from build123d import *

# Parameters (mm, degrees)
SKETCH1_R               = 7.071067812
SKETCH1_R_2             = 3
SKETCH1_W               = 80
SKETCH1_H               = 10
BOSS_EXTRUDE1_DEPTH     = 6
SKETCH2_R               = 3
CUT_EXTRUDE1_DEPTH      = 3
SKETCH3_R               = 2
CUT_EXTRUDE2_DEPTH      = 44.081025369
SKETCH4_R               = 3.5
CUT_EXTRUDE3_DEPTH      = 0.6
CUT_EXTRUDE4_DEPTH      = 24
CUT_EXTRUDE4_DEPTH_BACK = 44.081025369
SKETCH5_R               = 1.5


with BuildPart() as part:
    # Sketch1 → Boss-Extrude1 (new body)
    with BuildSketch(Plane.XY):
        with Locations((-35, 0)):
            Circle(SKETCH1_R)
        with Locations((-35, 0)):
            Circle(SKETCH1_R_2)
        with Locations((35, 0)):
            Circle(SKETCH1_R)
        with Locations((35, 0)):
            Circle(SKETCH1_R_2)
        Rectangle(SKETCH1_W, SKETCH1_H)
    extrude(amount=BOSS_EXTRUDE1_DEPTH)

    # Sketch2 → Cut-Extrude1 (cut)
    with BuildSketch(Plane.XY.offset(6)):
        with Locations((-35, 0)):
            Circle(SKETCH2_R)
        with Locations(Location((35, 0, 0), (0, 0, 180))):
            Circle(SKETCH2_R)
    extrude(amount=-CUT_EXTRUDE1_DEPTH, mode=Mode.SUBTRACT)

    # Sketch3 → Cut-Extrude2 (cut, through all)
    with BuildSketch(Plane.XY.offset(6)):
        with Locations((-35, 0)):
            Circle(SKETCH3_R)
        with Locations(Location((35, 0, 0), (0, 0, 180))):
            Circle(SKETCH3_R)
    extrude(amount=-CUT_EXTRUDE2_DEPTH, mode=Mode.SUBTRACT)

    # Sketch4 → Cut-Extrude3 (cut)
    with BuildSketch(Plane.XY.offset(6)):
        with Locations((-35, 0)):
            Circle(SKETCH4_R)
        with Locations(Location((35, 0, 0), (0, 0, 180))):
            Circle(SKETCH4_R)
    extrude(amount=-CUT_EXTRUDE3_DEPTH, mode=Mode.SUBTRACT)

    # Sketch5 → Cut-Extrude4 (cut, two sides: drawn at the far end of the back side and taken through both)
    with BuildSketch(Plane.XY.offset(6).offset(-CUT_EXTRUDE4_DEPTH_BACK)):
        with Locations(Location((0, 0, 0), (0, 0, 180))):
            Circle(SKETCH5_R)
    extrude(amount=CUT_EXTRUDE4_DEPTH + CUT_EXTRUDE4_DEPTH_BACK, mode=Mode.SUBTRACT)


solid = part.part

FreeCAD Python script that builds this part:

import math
import FreeCAD as App
import Part
import Sketcher

doc = App.newDocument("Part")
body = doc.addObject("PartDesign::Body", "Body")

# Sketch on XY plane
sketch1 = body.newObject("Sketcher::SketchObject", "Sketch")
sketch1.AttachmentSupport = (doc.getObject("XY_Plane"), [""])
sketch1.MapMode = "FlatFace"
sketch1.addGeometry(Part.LineSegment(App.Vector(-30, -5, 0), App.Vector(30, -5, 0)), False)
sketch1.addGeometry(Part.ArcOfCircle(Part.Circle(App.Vector(35, 0, 0), App.Vector(0, 0, 1), 7.071068), math.radians(-135), math.radians(135)), False)
sketch1.addGeometry(Part.LineSegment(App.Vector(30, 5, 0), App.Vector(-30, 5, 0)), False)
sketch1.addGeometry(Part.ArcOfCircle(Part.Circle(App.Vector(-35, 0, 0), App.Vector(0, 0, 1), 7.071068), math.radians(45), math.radians(315)), False)
sketch1.addConstraint(Sketcher.Constraint("Coincident", 0, 2, 1, 1))
sketch1.addConstraint(Sketcher.Constraint("Coincident", 1, 2, 2, 1))
sketch1.addConstraint(Sketcher.Constraint("Coincident", 2, 2, 3, 1))
sketch1.addConstraint(Sketcher.Constraint("Coincident", 3, 2, 0, 1))
sketch1.addConstraint(Sketcher.Constraint("Horizontal", 0))
sketch1.addConstraint(Sketcher.Constraint("Horizontal", 2))
sketch1.addConstraint(Sketcher.Constraint("Equal", 1, 3))
sketch1.addConstraint(Sketcher.Constraint("Symmetric", 1, 3, 3, 3, -1, 1))
sketch1.addConstraint(Sketcher.Constraint("Symmetric", 0, 2, 1, 2, -1))
sketch1.addConstraint(Sketcher.Constraint("DistanceX", 0, 1, 0, 2, 60.0))
sketch1.addConstraint(Sketcher.Constraint("DistanceX", -1, 1, 1, 3, 35.0))
sketch1.addConstraint(Sketcher.Constraint("DistanceY", 0, 2, -1, 1, 5.0))
pad1 = body.newObject("PartDesign::Pad", "Pad")
pad1.Profile = sketch1
pad1.Length = 6

# Sketch on XY plane
sketch2 = body.newObject("Sketcher::SketchObject", "Sketch001")
sketch2.AttachmentSupport = (doc.getObject("XY_Plane"), [""])
sketch2.MapMode = "FlatFace"
sketch2.AttachmentOffset = App.Placement(App.Vector(0, 0, 6), App.Rotation())
sketch2.addGeometry(Part.Circle(App.Vector(-35, 0, 0), App.Vector(0, 0, 1), 3), False)
sketch2.addGeometry(Part.Circle(App.Vector(35, 0, 0), App.Vector(0, 0, 1), 3), False)
sketch2.addConstraint(Sketcher.Constraint("Equal", 0, 1))
sketch2.addConstraint(Sketcher.Constraint("Symmetric", 0, 3, 1, 3, -1, 1))
sketch2.addConstraint(Sketcher.Constraint("PointOnObject", 0, 3, -1))
sketch2.addConstraint(Sketcher.Constraint("Diameter", 0, 6.0))
sketch2.addConstraint(Sketcher.Constraint("DistanceX", 0, 3, -1, 1, 35.0))
pocket1 = body.newObject("PartDesign::Pocket", "Pocket")
pocket1.Profile = sketch2
pocket1.Length = 3

# Sketch on XY plane
sketch3 = body.newObject("Sketcher::SketchObject", "Sketch002")
sketch3.AttachmentSupport = (doc.getObject("XY_Plane"), [""])
sketch3.MapMode = "FlatFace"
sketch3.AttachmentOffset = App.Placement(App.Vector(0, 0, 6), App.Rotation())
sketch3.addGeometry(Part.Circle(App.Vector(-35, 0, 0), App.Vector(0, 0, 1), 2), False)
sketch3.addGeometry(Part.Circle(App.Vector(35, 0, 0), App.Vector(0, 0, 1), 2), False)
sketch3.addConstraint(Sketcher.Constraint("Equal", 0, 1))
sketch3.addConstraint(Sketcher.Constraint("Symmetric", 0, 3, 1, 3, -1, 1))
sketch3.addConstraint(Sketcher.Constraint("PointOnObject", 0, 3, -1))
sketch3.addConstraint(Sketcher.Constraint("Diameter", 0, 4.0))
sketch3.addConstraint(Sketcher.Constraint("DistanceX", 0, 3, -1, 1, 35.0))
pocket2 = body.newObject("PartDesign::Pocket", "Pocket001")
pocket2.Profile = sketch3
pocket2.Type = "ThroughAll"

# Sketch on XY plane
sketch4 = body.newObject("Sketcher::SketchObject", "Sketch003")
sketch4.AttachmentSupport = (doc.getObject("XY_Plane"), [""])
sketch4.MapMode = "FlatFace"
sketch4.AttachmentOffset = App.Placement(App.Vector(0, 0, 6), App.Rotation())
sketch4.addGeometry(Part.Circle(App.Vector(-35, 0, 0), App.Vector(0, 0, 1), 3.5), False)
sketch4.addGeometry(Part.Circle(App.Vector(35, 0, 0), App.Vector(0, 0, 1), 3.5), False)
sketch4.addConstraint(Sketcher.Constraint("Equal", 0, 1))
sketch4.addConstraint(Sketcher.Constraint("Symmetric", 0, 3, 1, 3, -1, 1))
sketch4.addConstraint(Sketcher.Constraint("PointOnObject", 0, 3, -1))
sketch4.addConstraint(Sketcher.Constraint("Diameter", 0, 7.0))
sketch4.addConstraint(Sketcher.Constraint("DistanceX", 0, 3, -1, 1, 35.0))
pocket3 = body.newObject("PartDesign::Pocket", "Pocket002")
pocket3.Profile = sketch4
pocket3.Length = 0.6

# Sketch on XY plane
sketch5 = body.newObject("Sketcher::SketchObject", "Sketch004")
sketch5.AttachmentSupport = (doc.getObject("XY_Plane"), [""])
sketch5.MapMode = "FlatFace"
sketch5.AttachmentOffset = App.Placement(App.Vector(0, 0, 6), App.Rotation())
sketch5.addGeometry(Part.Circle(App.Vector(0, 0, 0), App.Vector(0, 0, 1), 1.5), False)
sketch5.addConstraint(Sketcher.Constraint("Coincident", 0, 3, -1, 1))
sketch5.addConstraint(Sketcher.Constraint("Diameter", 0, 3.0))
pocket4 = body.newObject("PartDesign::Pocket", "Pocket003")
pocket4.Profile = sketch5
pocket4.Type = "ThroughAll"
pocket4.Midplane = True

doc.recompute()
